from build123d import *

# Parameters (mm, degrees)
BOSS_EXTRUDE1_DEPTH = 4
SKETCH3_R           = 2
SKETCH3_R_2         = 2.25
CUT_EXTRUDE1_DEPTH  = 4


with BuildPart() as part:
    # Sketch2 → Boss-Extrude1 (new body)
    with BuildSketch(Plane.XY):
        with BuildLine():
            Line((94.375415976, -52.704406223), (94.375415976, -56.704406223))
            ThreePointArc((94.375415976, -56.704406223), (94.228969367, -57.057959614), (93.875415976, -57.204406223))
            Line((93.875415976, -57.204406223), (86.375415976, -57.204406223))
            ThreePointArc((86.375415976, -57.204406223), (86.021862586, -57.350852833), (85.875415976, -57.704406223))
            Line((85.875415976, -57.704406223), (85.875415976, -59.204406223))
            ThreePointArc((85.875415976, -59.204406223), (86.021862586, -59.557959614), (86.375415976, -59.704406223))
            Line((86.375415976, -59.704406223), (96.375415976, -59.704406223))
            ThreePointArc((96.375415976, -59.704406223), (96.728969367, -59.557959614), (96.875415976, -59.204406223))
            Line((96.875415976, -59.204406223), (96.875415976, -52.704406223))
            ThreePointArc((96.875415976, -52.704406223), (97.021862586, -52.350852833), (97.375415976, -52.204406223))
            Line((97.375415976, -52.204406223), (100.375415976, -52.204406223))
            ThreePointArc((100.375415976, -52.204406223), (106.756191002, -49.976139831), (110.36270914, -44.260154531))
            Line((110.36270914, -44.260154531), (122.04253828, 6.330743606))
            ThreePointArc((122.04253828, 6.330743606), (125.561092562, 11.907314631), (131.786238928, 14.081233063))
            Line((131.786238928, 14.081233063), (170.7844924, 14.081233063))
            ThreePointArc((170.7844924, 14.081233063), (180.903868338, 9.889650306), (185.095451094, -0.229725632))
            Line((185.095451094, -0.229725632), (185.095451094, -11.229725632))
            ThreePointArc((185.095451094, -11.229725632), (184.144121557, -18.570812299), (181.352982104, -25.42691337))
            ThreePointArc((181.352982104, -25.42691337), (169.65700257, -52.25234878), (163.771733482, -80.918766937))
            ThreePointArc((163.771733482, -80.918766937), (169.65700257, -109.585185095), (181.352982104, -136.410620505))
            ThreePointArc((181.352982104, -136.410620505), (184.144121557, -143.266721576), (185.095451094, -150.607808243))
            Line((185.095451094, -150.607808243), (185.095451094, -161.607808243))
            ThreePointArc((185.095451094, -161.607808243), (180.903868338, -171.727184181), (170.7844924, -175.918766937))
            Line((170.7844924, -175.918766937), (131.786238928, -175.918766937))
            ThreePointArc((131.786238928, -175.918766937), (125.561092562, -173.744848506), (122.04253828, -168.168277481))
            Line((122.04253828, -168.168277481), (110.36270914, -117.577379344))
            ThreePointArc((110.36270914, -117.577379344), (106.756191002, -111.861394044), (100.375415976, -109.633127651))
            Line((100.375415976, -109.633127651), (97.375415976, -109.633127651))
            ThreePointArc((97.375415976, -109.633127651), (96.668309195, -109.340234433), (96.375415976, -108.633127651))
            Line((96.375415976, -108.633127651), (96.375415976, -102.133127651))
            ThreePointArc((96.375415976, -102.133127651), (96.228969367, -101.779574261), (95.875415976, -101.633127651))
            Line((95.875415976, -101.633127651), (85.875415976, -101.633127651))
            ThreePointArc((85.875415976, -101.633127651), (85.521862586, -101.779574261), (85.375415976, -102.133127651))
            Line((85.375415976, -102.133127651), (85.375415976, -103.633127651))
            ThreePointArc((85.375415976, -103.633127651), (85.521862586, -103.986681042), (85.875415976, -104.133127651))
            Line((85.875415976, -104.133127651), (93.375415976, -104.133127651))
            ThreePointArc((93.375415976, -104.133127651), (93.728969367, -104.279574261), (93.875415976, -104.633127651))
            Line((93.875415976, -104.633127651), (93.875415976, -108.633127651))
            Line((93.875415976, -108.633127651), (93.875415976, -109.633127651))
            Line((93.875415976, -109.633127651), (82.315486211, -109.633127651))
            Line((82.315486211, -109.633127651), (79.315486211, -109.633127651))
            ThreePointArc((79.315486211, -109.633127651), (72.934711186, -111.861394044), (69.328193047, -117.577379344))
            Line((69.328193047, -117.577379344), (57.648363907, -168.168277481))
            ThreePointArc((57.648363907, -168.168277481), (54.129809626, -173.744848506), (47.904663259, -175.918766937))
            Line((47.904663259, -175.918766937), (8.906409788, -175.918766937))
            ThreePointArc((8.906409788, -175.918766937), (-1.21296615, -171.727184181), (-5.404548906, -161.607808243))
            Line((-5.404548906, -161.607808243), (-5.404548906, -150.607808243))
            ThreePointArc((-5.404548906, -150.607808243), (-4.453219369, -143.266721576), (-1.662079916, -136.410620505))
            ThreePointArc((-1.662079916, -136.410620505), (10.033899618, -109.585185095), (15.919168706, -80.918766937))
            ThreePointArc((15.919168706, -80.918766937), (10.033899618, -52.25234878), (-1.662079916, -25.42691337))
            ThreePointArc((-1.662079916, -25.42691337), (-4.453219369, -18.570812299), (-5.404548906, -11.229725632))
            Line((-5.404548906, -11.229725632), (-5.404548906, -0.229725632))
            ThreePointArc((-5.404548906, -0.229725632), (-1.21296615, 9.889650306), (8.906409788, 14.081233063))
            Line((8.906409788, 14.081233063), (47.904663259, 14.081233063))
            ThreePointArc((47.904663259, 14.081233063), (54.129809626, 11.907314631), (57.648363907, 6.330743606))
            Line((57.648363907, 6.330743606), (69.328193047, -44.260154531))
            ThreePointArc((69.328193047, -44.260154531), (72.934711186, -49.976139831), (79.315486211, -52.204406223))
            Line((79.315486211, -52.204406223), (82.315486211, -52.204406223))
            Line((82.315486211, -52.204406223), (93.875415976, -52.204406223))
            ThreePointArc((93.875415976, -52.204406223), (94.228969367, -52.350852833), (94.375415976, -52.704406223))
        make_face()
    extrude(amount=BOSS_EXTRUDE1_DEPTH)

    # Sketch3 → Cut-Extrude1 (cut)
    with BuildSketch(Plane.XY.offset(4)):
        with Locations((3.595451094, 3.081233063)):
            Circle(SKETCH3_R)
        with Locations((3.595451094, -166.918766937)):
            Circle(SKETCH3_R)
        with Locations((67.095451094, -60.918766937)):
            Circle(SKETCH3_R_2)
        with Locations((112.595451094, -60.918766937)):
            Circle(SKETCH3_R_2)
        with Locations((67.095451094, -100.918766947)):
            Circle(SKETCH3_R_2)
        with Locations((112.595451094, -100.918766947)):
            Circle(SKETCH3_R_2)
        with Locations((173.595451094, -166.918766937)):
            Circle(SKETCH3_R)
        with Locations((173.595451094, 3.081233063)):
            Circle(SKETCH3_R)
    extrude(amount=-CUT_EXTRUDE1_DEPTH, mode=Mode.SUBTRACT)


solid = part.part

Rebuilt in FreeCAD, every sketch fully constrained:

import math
import FreeCAD as App
import Part
import Sketcher
from FreeCAD import Vector
Q = App.Units.Quantity

doc = App.newDocument("Part")
body = doc.addObject("PartDesign::Body", "Body")

sketch1 = body.newObject("Sketcher::SketchObject", "Sketch")
sketch1.AttachmentSupport = (doc.getObject("XY_Plane"), [""])
sketch1.MapMode = "FlatFace"
sketch1.addGeometry([
    Part.LineSegment(Vector(94.38, -56.7, 0), Vector(94.38, -52.7, 0)),
    Part.ArcOfCircle(Part.Circle(Vector(93.88, -52.7, 0), Vector(0, 0, 1), 0.5), math.radians(0), math.radians(90)),
    Part.LineSegment(Vector(93.88, -52.2, 0), Vector(79.32, -52.2, 0)),
    Part.ArcOfCircle(Part.Circle(Vector(79.32, -41.95, 0), Vector(0, 0, 1), 10.25), math.radians(-167), math.radians(-90)),
    Part.LineSegment(Vector(69.33, -44.26, 0), Vector(57.65, 6.33, 0)),
    Part.ArcOfCircle(Part.Circle(Vector(47.9, 4.08, 0), Vector(0, 0, 1), 10), math.radians(13), math.radians(90)),
    Part.LineSegment(Vector(47.9, 14.08, 0), Vector(8.91, 14.08, 0)),
    Part.ArcOfCircle(Part.Circle(Vector(8.91, -0.23, 0), Vector(0, 0, 1), 14.31), math.radians(90), math.radians(180)),
    Part.LineSegment(Vector(-5.4, -0.23, 0), Vector(-5.4, -11.23, 0)),
    Part.ArcOfCircle(Part.Circle(Vector(23.4, -11.23, 0), Vector(0, 0, 1), 28.8), math.radians(180), math.radians(210)),
    Part.ArcOfCircle(Part.Circle(Vector(-123.9, -94.69, 0), Vector(0, 0, 1), 140.5), math.radians(6), math.radians(30)),
    Part.ArcOfCircle(Part.Circle(Vector(-123.9, -67.15, 0), Vector(0, 0, 1), 140.5), math.radians(-30), math.radians(-6)),
    Part.ArcOfCircle(Part.Circle(Vector(23.4, -150.61, 0), Vector(0, 0, 1), 28.8), math.radians(150), math.radians(180)),
    Part.LineSegment(Vector(-5.4, -150.61, 0), Vector(-5.4, -161.61, 0)),
    Part.ArcOfCircle(Part.Circle(Vector(8.91, -161.61, 0), Vector(0, 0, 1), 14.31), math.radians(180), math.radians(270)),
    Part.LineSegment(Vector(8.91, -175.92, 0), Vector(47.9, -175.92, 0)),
    Part.ArcOfCircle(Part.Circle(Vector(47.9, -165.92, 0), Vector(0, 0, 1), 10), math.radians(-90), math.radians(-13)),
    Part.LineSegment(Vector(57.65, -168.17, 0), Vector(69.33, -117.58, 0)),
    Part.ArcOfCircle(Part.Circle(Vector(79.32, -119.88, 0), Vector(0, 0, 1), 10.25), math.radians(90), math.radians(167)),
    Part.LineSegment(Vector(79.32, -109.63, 0), Vector(93.88, -109.63, 0)),
    Part.LineSegment(Vector(93.88, -109.63, 0), Vector(93.88, -104.63, 0)),
    Part.ArcOfCircle(Part.Circle(Vector(93.38, -104.63, 0), Vector(0, 0, 1), 0.5), math.radians(0), math.radians(90)),
    Part.LineSegment(Vector(93.38, -104.13, 0), Vector(85.88, -104.13, 0)),
    Part.ArcOfCircle(Part.Circle(Vector(85.88, -103.63, 0), Vector(0, 0, 1), 0.5), math.radians(180), math.radians(270)),
    Part.LineSegment(Vector(85.38, -103.63, 0), Vector(85.38, -102.13, 0)),
    Part.ArcOfCircle(Part.Circle(Vector(85.88, -102.13, 0), Vector(0, 0, 1), 0.5), math.radians(90), math.radians(180)),
    Part.LineSegment(Vector(85.88, -101.63, 0), Vector(95.88, -101.63, 0)),
    Part.ArcOfCircle(Part.Circle(Vector(95.88, -102.13, 0), Vector(0, 0, 1), 0.5), math.radians(0), math.radians(90)),
    Part.LineSegment(Vector(96.38, -102.13, 0), Vector(96.38, -108.63, 0)),
    Part.ArcOfCircle(Part.Circle(Vector(97.38, -108.63, 0), Vector(0, 0, 1), 1), math.radians(180), math.radians(270)),
    Part.LineSegment(Vector(97.38, -109.63, 0), Vector(100.38, -109.63, 0)),
    Part.ArcOfCircle(Part.Circle(Vector(100.38, -119.88, 0), Vector(0, 0, 1), 10.25), math.radians(13), math.radians(90)),
    Part.LineSegment(Vector(110.36, -117.58, 0), Vector(122.04, -168.17, 0)),
    Part.ArcOfCircle(Part.Circle(Vector(131.79, -165.92, 0), Vector(0, 0, 1), 10), math.radians(-167), math.radians(-90)),
    Part.LineSegment(Vector(131.79, -175.92, 0), Vector(170.78, -175.92, 0)),
    Part.ArcOfCircle(Part.Circle(Vector(170.78, -161.61, 0), Vector(0, 0, 1), 14.31), math.radians(-90), math.radians(0)),
    Part.LineSegment(Vector(185.1, -161.61, 0), Vector(185.1, -150.61, 0)),
    Part.ArcOfCircle(Part.Circle(Vector(156.3, -150.61, 0), Vector(0, 0, 1), 28.8), math.radians(0), math.radians(30)),
    Part.ArcOfCircle(Part.Circle(Vector(303.6, -67.15, 0), Vector(0, 0, 1), 140.5), math.radians(-174), math.radians(-150)),
    Part.ArcOfCircle(Part.Circle(Vector(303.6, -94.69, 0), Vector(0, 0, 1), 140.5), math.radians(150), math.radians(174)),
    Part.ArcOfCircle(Part.Circle(Vector(156.3, -11.23, 0), Vector(0, 0, 1), 28.8), math.radians(-30), math.radians(0)),
    Part.LineSegment(Vector(185.1, -11.23, 0), Vector(185.1, -0.23, 0)),
    Part.ArcOfCircle(Part.Circle(Vector(170.78, -0.23, 0), Vector(0, 0, 1), 14.31), math.radians(0), math.radians(90)),
    Part.LineSegment(Vector(170.78, 14.08, 0), Vector(131.79, 14.08, 0)),
    Part.ArcOfCircle(Part.Circle(Vector(131.79, 4.08, 0), Vector(0, 0, 1), 10), math.radians(90), math.radians(167)),
    Part.LineSegment(Vector(122.04, 6.33, 0), Vector(110.36, -44.26, 0)),
    Part.ArcOfCircle(Part.Circle(Vector(100.38, -41.95, 0), Vector(0, 0, 1), 10.25), math.radians(-90), math.radians(-13)),
    Part.LineSegment(Vector(100.38, -52.2, 0), Vector(97.38, -52.2, 0)),
    Part.ArcOfCircle(Part.Circle(Vector(97.38, -52.7, 0), Vector(0, 0, 1), 0.5), math.radians(90), math.radians(180)),
    Part.LineSegment(Vector(96.88, -52.7, 0), Vector(96.88, -59.2, 0)),
    Part.ArcOfCircle(Part.Circle(Vector(96.38, -59.2, 0), Vector(0, 0, 1), 0.5), math.radians(-90), math.radians(0)),
    Part.LineSegment(Vector(96.38, -59.7, 0), Vector(86.38, -59.7, 0)),
    Part.ArcOfCircle(Part.Circle(Vector(86.38, -59.2, 0), Vector(0, 0, 1), 0.5), math.radians(180), math.radians(270)),
    Part.LineSegment(Vector(85.88, -59.2, 0), Vector(85.88, -57.7, 0)),
    Part.ArcOfCircle(Part.Circle(Vector(86.38, -57.7, 0), Vector(0, 0, 1), 0.5), math.radians(90), math.radians(180)),
    Part.LineSegment(Vector(86.38, -57.2, 0), Vector(93.88, -57.2, 0)),
    Part.ArcOfCircle(Part.Circle(Vector(93.88, -56.7, 0), Vector(0, 0, 1), 0.5), math.radians(-90), math.radians(0)),
], False)
sketch1.addConstraint([
    Sketcher.Constraint("Tangent", 0, 2, 1, 1),
    Sketcher.Constraint("Tangent", 1, 2, 2, 1),
    Sketcher.Constraint("Tangent", 2, 2, 3, 2),
    Sketcher.Constraint("Tangent", 3, 1, 4, 1),
    Sketcher.Constraint("Tangent", 4, 2, 5, 1),
    Sketcher.Constraint("Tangent", 5, 2, 6, 1),
    Sketcher.Constraint("Tangent", 6, 2, 7, 1),
    Sketcher.Constraint("Tangent", 7, 2, 8, 1),
    Sketcher.Constraint("Tangent", 8, 2, 9, 1),
    Sketcher.Constraint("Tangent", 9, 2, 10, 2),
    Sketcher.Constraint("Coincident", 10, 1, 11, 2),
    Sketcher.Constraint("Tangent", 11, 1, 12, 1),
    Sketcher.Constraint("Tangent", 12, 2, 13, 1),
    Sketcher.Constraint("Tangent", 13, 2, 14, 1),
    Sketcher.Constraint("Tangent", 14, 2, 15, 1),
    Sketcher.Constraint("Tangent", 15, 2, 16, 1),
    Sketcher.Constraint("Tangent", 16, 2, 17, 1),
    Sketcher.Constraint("Tangent", 17, 2, 18, 2),
    Sketcher.Constraint("Tangent", 18, 1, 19, 1),
    Sketcher.Constraint("Coincident", 19, 2, 20, 1),
    Sketcher.Constraint("Tangent", 20, 2, 21, 1),
    Sketcher.Constraint("Tangent", 21, 2, 22, 1),
    Sketcher.Constraint("Tangent", 22, 2, 23, 2),
    Sketcher.Constraint("Tangent", 23, 1, 24, 1),
    Sketcher.Constraint("Tangent", 24, 2, 25, 2),
    Sketcher.Constraint("Tangent", 25, 1, 26, 1),
    Sketcher.Constraint("Tangent", 26, 2, 27, 2),
    Sketcher.Constraint("Tangent", 27, 1, 28, 1),
    Sketcher.Constraint("Tangent", 28, 2, 29, 1),
    Sketcher.Constraint("Tangent", 29, 2, 30, 1),
    Sketcher.Constraint("Tangent", 30, 2, 31, 2),
    Sketcher.Constraint("Tangent", 31, 1, 32, 1),
    Sketcher.Constraint("Tangent", 32, 2, 33, 1),
    Sketcher.Constraint("Tangent", 33, 2, 34, 1),
    Sketcher.Constraint("Tangent", 34, 2, 35, 1),
    Sketcher.Constraint("Tangent", 35, 2, 36, 1),
    Sketcher.Constraint("Tangent", 36, 2, 37, 1),
    Sketcher.Constraint("Tangent", 37, 2, 38, 2),
    Sketcher.Constraint("Coincident", 38, 1, 39, 2),
    Sketcher.Constraint("Tangent", 39, 1, 40, 1),
    Sketcher.Constraint("Tangent", 40, 2, 41, 1),
    Sketcher.Constraint("Tangent", 41, 2, 42, 1),
    Sketcher.Constraint("Tangent", 42, 2, 43, 1),
    Sketcher.Constraint("Tangent", 43, 2, 44, 1),
    Sketcher.Constraint("Tangent", 44, 2, 45, 1),
    Sketcher.Constraint("Tangent", 45, 2, 46, 2),
    Sketcher.Constraint("Tangent", 46, 1, 47, 1),
    Sketcher.Constraint("Tangent", 47, 2, 48, 1),
    Sketcher.Constraint("Tangent", 48, 2, 49, 1),
    Sketcher.Constraint("Tangent", 49, 2, 50, 2),
    Sketcher.Constraint("Tangent", 50, 1, 51, 1),
    Sketcher.Constraint("Tangent", 51, 2, 52, 2),
    Sketcher.Constraint("Tangent", 52, 1, 53, 1),
    Sketcher.Constraint("Tangent", 53, 2, 54, 2),
    Sketcher.Constraint("Tangent", 54, 1, 55, 1),
    Sketcher.Constraint("Tangent", 55, 2, 56, 1),
    Sketcher.Constraint("Tangent", 56, 2, 0, 1),
    Sketcher.Constraint("Vertical", 0),
    Sketcher.Constraint("Horizontal", 2),
    Sketcher.Constraint("Horizontal", 6),
    Sketcher.Constraint("Vertical", 8),
    Sketcher.Constraint("Vertical", 13),
    Sketcher.Constraint("Horizontal", 15),
    Sketcher.Constraint("Horizontal", 19),
    Sketcher.Constraint("Vertical", 20),
    Sketcher.Constraint("Horizontal", 22),
    Sketcher.Constraint("Vertical", 24),
    Sketcher.Constraint("Horizontal", 26),
    Sketcher.Constraint("Vertical", 28),
    Sketcher.Constraint("Horizontal", 30),
    Sketcher.Constraint("Horizontal", 34),
    Sketcher.Constraint("Vertical", 36),
    Sketcher.Constraint("Vertical", 41),
    Sketcher.Constraint("Horizontal", 43),
    Sketcher.Constraint("Horizontal", 47),
    Sketcher.Constraint("Vertical", 49),
    Sketcher.Constraint("Horizontal", 51),
    Sketcher.Constraint("Vertical", 53),
    Sketcher.Constraint("Horizontal", 55),
    Sketcher.Constraint("Equal", 10, 11),
    Sketcher.Constraint("Equal", 9, 12),
    Sketcher.Constraint("Equal", 7, 14),
    Sketcher.Constraint("Equal", 5, 16),
    Sketcher.Constraint("Equal", 3, 18),
    Sketcher.Constraint("Equal", 1, 21),
    Sketcher.Constraint("Equal", 21, 23),
    Sketcher.Constraint("Equal", 23, 25),
    Sketcher.Constraint("Equal", 25, 27),
    Sketcher.Constraint("Equal", 18, 31),
    Sketcher.Constraint("Equal", 16, 33),
    Sketcher.Constraint("Equal", 14, 35),
    Sketcher.Constraint("Equal", 12, 37),
    Sketcher.Constraint("Equal", 11, 38),
    Sketcher.Constraint("Equal", 38, 39),
    Sketcher.Constraint("Equal", 37, 40),
    Sketcher.Constraint("Equal", 35, 42),
    Sketcher.Constraint("Equal", 33, 44),
    Sketcher.Constraint("Equal", 31, 46),
    Sketcher.Constraint("Equal", 27, 48),
    Sketcher.Constraint("Equal", 48, 50),
    Sketcher.Constraint("Equal", 50, 52),
    Sketcher.Constraint("Equal", 52, 54),
    Sketcher.Constraint("Equal", 54, 56),
    Sketcher.Constraint("Parallel", 4, 32),
    Sketcher.Constraint("Parallel", 17, 45),
    Sketcher.Constraint("Horizontal", 18, 3, 31, 3),
    Sketcher.Constraint("Horizontal", 16, 3, 33, 3),
    Sketcher.Constraint("Horizontal", 12, 3, 37, 3),
    Sketcher.Constraint("Horizontal", 11, 3, 38, 3),
    Sketcher.Constraint("Horizontal", 10, 3, 39, 3),
    Sketcher.Constraint("Horizontal", 9, 3, 40, 3),
    Sketcher.Constraint("Horizontal", 7, 3, 42, 3),
    Sketcher.Constraint("Horizontal", 3, 3, 46, 3),
    Sketcher.Constraint("Horizontal", 17, 2, 31, 1),
    Sketcher.Constraint("Horizontal", 10, 1, 38, 1),
    Sketcher.Constraint("Vertical", 10, 3, 11, 3),
    Sketcher.Constraint("Vertical", 9, 3, 12, 3),
    Sketcher.Constraint("Vertical", 5, 3, 16, 3),
    Sketcher.Constraint("Vertical", 3, 3, 18, 3),
    Sketcher.Constraint("Vertical", 33, 3, 44, 3),
    Sketcher.Constraint("Vertical", 29, 3, 48, 3),
    Sketcher.Constraint("Vertical", 1, 2, 19, 2),
    Sketcher.Constraint("Vertical", 50, 3, 27, 1),
    Sketcher.Constraint("Vertical", 25, 1, 52, 1),
    Sketcher.Constraint("Equal", 15, 34),
    Sketcher.Constraint("Equal", 8, 13),
    Sketcher.Constraint("Equal", 28, 49),
    Sketcher.Constraint("Equal", 24, 53),
    Sketcher.Constraint("Radius", 5, 10.0),
    Sketcher.Constraint("Radius", 29, 1.0),
    Sketcher.Constraint("Radius", 9, 28.8),
    Sketcher.Constraint("Radius", 10, 140.5),
    Sketcher.Constraint("DistanceX", 26, 1, 26, 2, 10.0),
    Sketcher.Constraint("DistanceX", 30, 1, 30, 2, 3.0),
    Sketcher.Constraint("DistanceY", 0, 1, 0, 2, 4.0),
    Sketcher.Constraint("DistanceY", 8, 2, 8, 1, 11.0),
    Sketcher.Constraint("Angle", 4, Q("103 deg")),
    Sketcher.Constraint("Radius", 3, 10.25),
    Sketcher.Constraint("DistanceX", 22, 2, 22, 1, 7.5),
    Sketcher.Constraint("DistanceY", 24, 1, 24, 2, 1.5),
    Sketcher.Constraint("Radius", 7, 14.310959),
    Sketcher.Constraint("DistanceX", 2, 2, 2, 1, 14.55993),
    Sketcher.Constraint("DistanceY", 10, 3, -1, 1, 94.687499),
    Sketcher.Constraint("DistanceX", 6, 2, 6, 1, 38.998253),
    Sketcher.Constraint("DistanceX", -1, 1, 7, 3, 8.90641),
    Sketcher.Constraint("DistanceX", 10, 3, -1, 1, 123.904549),
    Sketcher.Constraint("DistanceY", 12, 3, -1, 1, 150.607808),
    Sketcher.Constraint("DistanceX", -1, 1, 33, 3, 131.786239),
])
pad1 = body.newObject("PartDesign::Pad", "Pad")
pad1.Profile = sketch1
pad1.Length = 4

sketch2 = body.newObject("Sketcher::SketchObject", "Sketch001")
sketch2.AttachmentSupport = (doc.getObject("XY_Plane"), [""])
sketch2.MapMode = "FlatFace"
sketch2.AttachmentOffset = App.Placement(Vector(0, 0, 4), App.Rotation())
sketch2.addGeometry([
    Part.Circle(Vector(3.6, 3.1, 0), Vector(0, 0, 1), 2),
    Part.Circle(Vector(3.6, -166.9, 0), Vector(0, 0, 1), 2),
    Part.Circle(Vector(67.1, -60.9, 0), Vector(0, 0, 1), 2.2),
    Part.Circle(Vector(112.6, -60.9, 0), Vector(0, 0, 1), 2.2),
    Part.Circle(Vector(67.1, -100.9, 0), Vector(0, 0, 1), 2.2),
    Part.Circle(Vector(112.6, -100.9, 0), Vector(0, 0, 1), 2.2),
    Part.Circle(Vector(173.6, -166.9, 0), Vector(0, 0, 1), 2),
    Part.Circle(Vector(173.6, 3.1, 0), Vector(0, 0, 1), 2),
], False)
sketch2.addConstraint([
    Sketcher.Constraint("Equal", 0, 1),
    Sketcher.Constraint("Equal", 2, 3),
    Sketcher.Constraint("Equal", 3, 4),
    Sketcher.Constraint("Equal", 4, 5),
    Sketcher.Constraint("Equal", 1, 6),
    Sketcher.Constraint("Equal", 6, 7),
    Sketcher.Constraint("Horizontal", 2, 3, 3, 3),
    Sketcher.Constraint("Horizontal", 4, 3, 5, 3),
    Sketcher.Constraint("Horizontal", 1, 3, 6, 3),
    Sketcher.Constraint("Horizontal", 0, 3, 7, 3),
    Sketcher.Constraint("Vertical", 0, 3, 1, 3),
    Sketcher.Constraint("Vertical", 2, 3, 4, 3),
    Sketcher.Constraint("Vertical", 3, 3, 5, 3),
    Sketcher.Constraint("Vertical", 6, 3, 7, 3),
    Sketcher.Constraint("Diameter", 0, 4.0),
    Sketcher.Constraint("Diameter", 2, 4.5),
    Sketcher.Constraint("DistanceY", 1, 3, 0, 3, 170.0),
    Sketcher.Constraint("DistanceY", 2, 3, 0, 3, 64.0),
    Sketcher.Constraint("DistanceX", 0, 3, 3, 3, 109.0),
    Sketcher.Constraint("DistanceY", 4, 3, 2, 3, 40.0),
    Sketcher.Constraint("DistanceX", 5, 3, 6, 3, 61.0),
    Sketcher.Constraint("DistanceX", 0, 3, 2, 3, 63.5),
    Sketcher.Constraint("DistanceX", -1, 1, 0, 3, 3.595451),
    Sketcher.Constraint("DistanceY", -1, 1, 0, 3, 3.081233),
])
pocket1 = body.newObject("PartDesign::Pocket", "Pocket")
pocket1.Profile = sketch2
pocket1.Length = 4

doc.recompute()
